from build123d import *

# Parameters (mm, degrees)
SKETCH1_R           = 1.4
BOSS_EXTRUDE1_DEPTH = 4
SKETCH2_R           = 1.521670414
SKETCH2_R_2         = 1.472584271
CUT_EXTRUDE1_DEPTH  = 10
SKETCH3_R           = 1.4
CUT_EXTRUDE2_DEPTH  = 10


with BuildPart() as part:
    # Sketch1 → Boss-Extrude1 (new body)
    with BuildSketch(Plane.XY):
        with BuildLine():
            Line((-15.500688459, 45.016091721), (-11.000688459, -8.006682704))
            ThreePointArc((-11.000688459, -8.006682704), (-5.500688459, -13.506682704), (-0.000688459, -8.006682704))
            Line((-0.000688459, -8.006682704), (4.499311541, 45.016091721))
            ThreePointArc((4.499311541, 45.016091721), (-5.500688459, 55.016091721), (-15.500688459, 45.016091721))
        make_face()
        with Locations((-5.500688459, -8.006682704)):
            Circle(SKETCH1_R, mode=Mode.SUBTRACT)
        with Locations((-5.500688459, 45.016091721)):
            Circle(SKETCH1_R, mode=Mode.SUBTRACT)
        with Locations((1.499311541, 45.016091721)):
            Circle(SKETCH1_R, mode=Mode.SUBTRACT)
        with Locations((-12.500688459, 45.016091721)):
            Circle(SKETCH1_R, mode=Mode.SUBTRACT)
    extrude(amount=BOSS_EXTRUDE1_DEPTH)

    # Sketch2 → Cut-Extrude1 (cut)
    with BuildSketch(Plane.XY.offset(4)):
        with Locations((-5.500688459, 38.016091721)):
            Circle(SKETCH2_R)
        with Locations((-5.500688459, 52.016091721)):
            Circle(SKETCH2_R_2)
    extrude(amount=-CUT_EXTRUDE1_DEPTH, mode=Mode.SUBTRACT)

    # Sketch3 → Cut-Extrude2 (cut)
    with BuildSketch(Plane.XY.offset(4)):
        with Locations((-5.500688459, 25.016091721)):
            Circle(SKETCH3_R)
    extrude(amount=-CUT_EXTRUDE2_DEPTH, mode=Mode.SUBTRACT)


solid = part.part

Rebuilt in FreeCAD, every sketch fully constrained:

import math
import FreeCAD as App
import Part
import Sketcher

V = App.Vector
Q = App.Units.Quantity

doc = App.newDocument("Part")
body = doc.addObject("PartDesign::Body", "Body")

sketch1 = doc.addObject("Sketcher::SketchObject", "Sketch")
body.addObject(sketch1)
sketch1.AttachmentSupport = (doc.XY_Plane, [""])
sketch1.MapMode = "FlatFace"
sketch1.addGeometry([
    Part.LineSegment(V(-15.5, 45, 0), V(-11, -8, 0)),
    Part.ArcOfCircle(Part.Circle(V(-5.5, -8, 0), V(0, 0, 1), 5.5), math.radians(180), math.radians(360)),
    Part.LineSegment(V(0, -8, 0), V(4.5, 45, 0)),
    Part.ArcOfCircle(Part.Circle(V(-5.5, 45, 0), V(0, 0, 1), 10), math.radians(0), math.radians(180)),
    Part.Circle(V(-5.5, -8, 0), V(0, 0, 1), 1.4),
    Part.Circle(V(-12.5, 45, 0), V(0, 0, 1), 1.4),
    Part.Circle(V(-5.5, 45, 0), V(0, 0, 1), 1.4),
    Part.Circle(V(1.5, 45, 0), V(0, 0, 1), 1.4),
], False)
sketch1.addConstraint([
    Sketcher.Constraint("Coincident", 0, 2, 1, 1),
    Sketcher.Constraint("Coincident", 1, 2, 2, 1),
    Sketcher.Constraint("Coincident", 2, 2, 3, 1),
    Sketcher.Constraint("Coincident", 3, 2, 0, 1),
    Sketcher.Constraint("Coincident", 4, 3, 1, 3),
    Sketcher.Constraint("Coincident", 6, 3, 3, 3),
    Sketcher.Constraint("Equal", 4, 5),
    Sketcher.Constraint("Equal", 5, 6),
    Sketcher.Constraint("Equal", 6, 7),
    Sketcher.Constraint("Horizontal", 3, 3, 5, 3),
    Sketcher.Constraint("Horizontal", 6, 3, 7, 3),
    Sketcher.Constraint("Horizontal", 4, 3, 0, 2),
    Sketcher.Constraint("Horizontal", 0, 2, 1, 2),
    Sketcher.Constraint("Horizontal", 7, 3, 2, 2),
    Sketcher.Constraint("Horizontal", 2, 2, 3, 2),
    Sketcher.Constraint("Vertical", 1, 3, 3, 3),
    Sketcher.Constraint("Radius", 3, Q("10 mm")),
    Sketcher.Constraint("Diameter", 4, Q("2.8 mm")),
    Sketcher.Constraint("Radius", 1, Q("5.5 mm")),
    Sketcher.Constraint("DistanceX", 5, 3, 3, 3, Q("7 mm")),
    Sketcher.Constraint("DistanceX", 3, 3, 7, 3, Q("7 mm")),
    Sketcher.Constraint("DistanceX", 1, 3, -1, 1, Q("5.500688 mm")),
    Sketcher.Constraint("DistanceY", -1, 1, 3, 3, Q("45.016092 mm")),
    Sketcher.Constraint("Distance", 0, Q("53.213387 mm")),
])
pad1 = doc.addObject("PartDesign::Pad", "Pad")
body.addObject(pad1)
pad1.Profile = sketch1
pad1.Length = 4

sketch2 = doc.addObject("Sketcher::SketchObject", "Sketch001")
body.addObject(sketch2)
sketch2.AttachmentSupport = (doc.XY_Plane, [""])
sketch2.MapMode = "FlatFace"
sketch2.AttachmentOffset = App.Placement(V(0, 0, 4), App.Rotation())
sketch2.addGeometry([
    Part.Circle(V(-5.5, 38, 0), V(0, 0, 1), 1.5),
    Part.Circle(V(-5.5, 52, 0), V(0, 0, 1), 1.5),
], False)
sketch2.addConstraint([
    Sketcher.Constraint("Vertical", 0, 3, 1, 3),
    Sketcher.Constraint("DistanceY", 0, 3, 1, 3, Q("14 mm")),
    Sketcher.Constraint("Diameter", 0, Q("3.043341 mm")),
    Sketcher.Constraint("Diameter", 1, Q("2.945169 mm")),
    Sketcher.Constraint("DistanceX", 0, 3, -1, 1, Q("5.500688 mm")),
    Sketcher.Constraint("DistanceY", -1, 1, 0, 3, Q("38.016092 mm")),
])
pocket1 = doc.addObject("PartDesign::Pocket", "Pocket")
body.addObject(pocket1)
pocket1.Profile = sketch2
pocket1.Length = 10

sketch3 = doc.addObject("Sketcher::SketchObject", "Sketch002")
body.addObject(sketch3)
sketch3.AttachmentSupport = (doc.XY_Plane, [""])
sketch3.MapMode = "FlatFace"
sketch3.AttachmentOffset = App.Placement(V(0, 0, 4), App.Rotation())
sketch3.addGeometry(Part.Circle(V(-5.5, 25, 0), V(0, 0, 1), 1.4), False)
sketch3.addConstraint([
    Sketcher.Constraint("Diameter", 0, Q("2.8 mm")),
    Sketcher.Constraint("DistanceX", 0, 3, -1, 1, Q("5.500688 mm")),
    Sketcher.Constraint("DistanceY", -1, 1, 0, 3, Q("25.016092 mm")),
])
pocket2 = doc.addObject("PartDesign::Pocket", "Pocket001")
body.addObject(pocket2)
pocket2.Profile = sketch3
pocket2.Length = 10

doc.recompute()
